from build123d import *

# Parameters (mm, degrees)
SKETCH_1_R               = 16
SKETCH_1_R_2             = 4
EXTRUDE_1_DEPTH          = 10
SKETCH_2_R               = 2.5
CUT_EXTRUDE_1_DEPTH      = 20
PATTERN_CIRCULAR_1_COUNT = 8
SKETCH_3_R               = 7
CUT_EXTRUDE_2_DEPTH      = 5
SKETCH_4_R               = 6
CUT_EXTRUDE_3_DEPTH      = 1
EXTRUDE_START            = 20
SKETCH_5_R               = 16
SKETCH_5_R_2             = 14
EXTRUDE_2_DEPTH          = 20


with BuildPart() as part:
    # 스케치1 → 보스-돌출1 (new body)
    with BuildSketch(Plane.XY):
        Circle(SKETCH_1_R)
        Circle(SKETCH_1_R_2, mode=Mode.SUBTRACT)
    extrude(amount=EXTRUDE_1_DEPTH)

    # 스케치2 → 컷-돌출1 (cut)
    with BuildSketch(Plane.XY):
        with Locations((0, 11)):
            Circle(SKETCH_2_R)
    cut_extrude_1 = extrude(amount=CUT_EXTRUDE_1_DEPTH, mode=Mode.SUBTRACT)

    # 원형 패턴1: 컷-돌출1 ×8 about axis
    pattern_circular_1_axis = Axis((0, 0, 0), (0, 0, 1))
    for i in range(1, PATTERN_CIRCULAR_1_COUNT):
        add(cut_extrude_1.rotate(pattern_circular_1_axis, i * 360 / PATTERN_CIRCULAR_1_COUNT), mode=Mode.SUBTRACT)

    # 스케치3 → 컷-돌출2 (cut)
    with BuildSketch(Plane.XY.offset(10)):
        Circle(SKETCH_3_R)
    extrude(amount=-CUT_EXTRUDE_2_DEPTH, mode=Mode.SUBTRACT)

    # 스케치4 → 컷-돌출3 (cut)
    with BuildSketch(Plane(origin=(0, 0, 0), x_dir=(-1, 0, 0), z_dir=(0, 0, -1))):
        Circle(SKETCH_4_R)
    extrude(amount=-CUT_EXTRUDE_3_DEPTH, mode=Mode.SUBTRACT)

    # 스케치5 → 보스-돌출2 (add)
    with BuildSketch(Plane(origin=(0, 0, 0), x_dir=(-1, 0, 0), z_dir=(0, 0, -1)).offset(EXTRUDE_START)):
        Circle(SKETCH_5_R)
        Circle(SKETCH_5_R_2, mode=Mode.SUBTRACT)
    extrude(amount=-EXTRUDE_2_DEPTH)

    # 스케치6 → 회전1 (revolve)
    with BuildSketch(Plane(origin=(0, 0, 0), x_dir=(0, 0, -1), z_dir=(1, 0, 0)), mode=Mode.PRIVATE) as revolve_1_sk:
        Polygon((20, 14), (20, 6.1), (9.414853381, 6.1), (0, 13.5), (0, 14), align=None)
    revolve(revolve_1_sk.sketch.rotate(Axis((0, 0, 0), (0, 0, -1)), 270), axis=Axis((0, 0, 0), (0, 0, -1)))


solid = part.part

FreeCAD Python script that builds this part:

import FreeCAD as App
import Part
import Sketcher
from FreeCAD import Vector
Q = App.Units.Quantity


def add_polygon(sketch, points):
    """Adds a closed chain of lines whose ends are joined by coincident constraints."""
    first, n = sketch.GeometryCount, len(points)
    for a, b in zip(points, points[1:] + points[:1]):
        sketch.addGeometry(Part.LineSegment(App.Vector(*a, 0), App.Vector(*b, 0)), False)
    for i in range(n):
        sketch.addConstraint(Sketcher.Constraint("Coincident", first + i, 2, first + (i + 1) % n, 1))

doc = App.newDocument("Part")
body = doc.addObject("PartDesign::Body", "Body")

sketch1 = doc.addObject("Sketcher::SketchObject", "Sketch")
body.addObject(sketch1)
sketch1.AttachmentSupport = (doc.XY_Plane, [""])
sketch1.MapMode = "FlatFace"
sketch1.addGeometry(Part.Circle(Vector(0, 0, 0), Vector(0, 0, 1), 16), False)
sketch1.addGeometry(Part.Circle(Vector(0, 0, 0), Vector(0, 0, 1), 4), False)
sketch1.addConstraint(Sketcher.Constraint("Coincident", 0, 3, -1, 1))
sketch1.addConstraint(Sketcher.Constraint("Coincident", 1, 3, -1, 1))
sketch1.addConstraint(Sketcher.Constraint("Diameter", 0, Q("32 mm")))
sketch1.addConstraint(Sketcher.Constraint("Diameter", 1, Q("8 mm")))
pad1 = doc.addObject("PartDesign::Pad", "Pad")
body.addObject(pad1)
pad1.Profile = sketch1
pad1.Length = 10

sketch2 = doc.addObject("Sketcher::SketchObject", "Sketch001")
body.addObject(sketch2)
sketch2.AttachmentSupport = (doc.XY_Plane, [""])
sketch2.MapMode = "FlatFace"
sketch2.addGeometry(Part.Circle(Vector(0, 11, 0), Vector(0, 0, 1), 2.5), False)
sketch2.addConstraint(Sketcher.Constraint("PointOnObject", 0, 3, -2))
sketch2.addConstraint(Sketcher.Constraint("Diameter", 0, Q("5 mm")))
sketch2.addConstraint(Sketcher.Constraint("DistanceY", -1, 1, 0, 3, Q("11 mm")))
pocket1 = doc.addObject("PartDesign::Pocket", "Pocket")
body.addObject(pocket1)
pocket1.Profile = sketch2
pocket1.Length = 20
pocket1.Reversed = True
doc.recompute()

polarpattern = doc.addObject("PartDesign::PolarPattern", "PolarPattern")
body.addObject(polarpattern)
polarpattern.Originals = [pocket1]
polarpattern.Axis = (doc.Z_Axis, [""])
polarpattern.Angle = 360
polarpattern.Occurrences = 8
body.Tip = polarpattern

sketch3 = doc.addObject("Sketcher::SketchObject", "Sketch002")
body.addObject(sketch3)
sketch3.AttachmentSupport = (doc.XY_Plane, [""])
sketch3.MapMode = "FlatFace"
sketch3.AttachmentOffset = App.Placement(Vector(0, 0, 10), App.Rotation())
sketch3.addGeometry(Part.Circle(Vector(0, 0, 0), Vector(0, 0, 1), 7), False)
sketch3.addConstraint(Sketcher.Constraint("Coincident", 0, 3, -1, 1))
sketch3.addConstraint(Sketcher.Constraint("Diameter", 0, Q("14 mm")))
pocket2 = doc.addObject("PartDesign::Pocket", "Pocket001")
body.addObject(pocket2)
pocket2.Profile = sketch3
pocket2.Length = 5

sketch4 = doc.addObject("Sketcher::SketchObject", "Sketch003")
body.addObject(sketch4)
sketch4.AttachmentSupport = (doc.XY_Plane, [""])
sketch4.MapMode = "FlatFace"
sketch4.addGeometry(Part.Circle(Vector(0, 0, 0), Vector(0, 0, 1), 6), False)
sketch4.addConstraint(Sketcher.Constraint("Coincident", 0, 3, -1, 1))
sketch4.addConstraint(Sketcher.Constraint("Diameter", 0, Q("12 mm")))
pocket3 = doc.addObject("PartDesign::Pocket", "Pocket002")
body.addObject(pocket3)
pocket3.Profile = sketch4
pocket3.Length = 1
pocket3.Reversed = True

sketch5 = doc.addObject("Sketcher::SketchObject", "Sketch004")
body.addObject(sketch5)
sketch5.AttachmentSupport = (doc.XY_Plane, [""])
sketch5.MapMode = "FlatFace"
sketch5.AttachmentOffset = App.Placement(Vector(0, 0, -20), App.Rotation())
sketch5.addGeometry(Part.Circle(Vector(0, 0, 0), Vector(0, 0, 1), 16), False)
sketch5.addGeometry(Part.Circle(Vector(0, 0, 0), Vector(0, 0, 1), 14), False)
sketch5.addConstraint(Sketcher.Constraint("Coincident", 0, 3, -1, 1))
sketch5.addConstraint(Sketcher.Constraint("Coincident", 1, 3, -1, 1))
sketch5.addConstraint(Sketcher.Constraint("Diameter", 0, Q("32 mm")))
sketch5.addConstraint(Sketcher.Constraint("Diameter", 1, Q("28 mm")))
pad2 = doc.addObject("PartDesign::Pad", "Pad001")
body.addObject(pad2)
pad2.Profile = sketch5
pad2.Length = 20

sketch6 = doc.addObject("Sketcher::SketchObject", "Sketch005")
body.addObject(sketch6)
sketch6.AttachmentSupport = (doc.YZ_Plane, [""])
sketch6.MapMode = "FlatFace"
add_polygon(sketch6, [(6.1, -20), (14, -20), (14, 0), (13.5, 0), (6.1, -9.414853)])
sketch6.addConstraint(Sketcher.Constraint("Horizontal", 0))
sketch6.addConstraint(Sketcher.Constraint("Vertical", 1))
sketch6.addConstraint(Sketcher.Constraint("Horizontal", 2))
sketch6.addConstraint(Sketcher.Constraint("Vertical", 4))
sketch6.addConstraint(Sketcher.Constraint("PointOnObject", 1, 2, -1))
sketch6.addConstraint(Sketcher.Constraint("DistanceY", 1, 1, 1, 2, Q("20 mm")))
sketch6.addConstraint(Sketcher.Constraint("DistanceX", 0, 1, 0, 2, Q("7.9 mm")))
sketch6.addConstraint(Sketcher.Constraint("DistanceX", 2, 2, 2, 1, Q("0.5 mm")))
sketch6.addConstraint(Sketcher.Constraint("DistanceX", -1, 1, 0, 2, Q("14 mm")))
sketch6.addConstraint(Sketcher.Constraint("Distance", 3, Q("11.974952 mm")))
revolution = doc.addObject("PartDesign::Revolution", "Revolution")
body.addObject(revolution)
revolution.Profile = sketch6
revolution.ReferenceAxis = (sketch6, ["V_Axis"])
revolution.Angle = 360

doc.recompute()
